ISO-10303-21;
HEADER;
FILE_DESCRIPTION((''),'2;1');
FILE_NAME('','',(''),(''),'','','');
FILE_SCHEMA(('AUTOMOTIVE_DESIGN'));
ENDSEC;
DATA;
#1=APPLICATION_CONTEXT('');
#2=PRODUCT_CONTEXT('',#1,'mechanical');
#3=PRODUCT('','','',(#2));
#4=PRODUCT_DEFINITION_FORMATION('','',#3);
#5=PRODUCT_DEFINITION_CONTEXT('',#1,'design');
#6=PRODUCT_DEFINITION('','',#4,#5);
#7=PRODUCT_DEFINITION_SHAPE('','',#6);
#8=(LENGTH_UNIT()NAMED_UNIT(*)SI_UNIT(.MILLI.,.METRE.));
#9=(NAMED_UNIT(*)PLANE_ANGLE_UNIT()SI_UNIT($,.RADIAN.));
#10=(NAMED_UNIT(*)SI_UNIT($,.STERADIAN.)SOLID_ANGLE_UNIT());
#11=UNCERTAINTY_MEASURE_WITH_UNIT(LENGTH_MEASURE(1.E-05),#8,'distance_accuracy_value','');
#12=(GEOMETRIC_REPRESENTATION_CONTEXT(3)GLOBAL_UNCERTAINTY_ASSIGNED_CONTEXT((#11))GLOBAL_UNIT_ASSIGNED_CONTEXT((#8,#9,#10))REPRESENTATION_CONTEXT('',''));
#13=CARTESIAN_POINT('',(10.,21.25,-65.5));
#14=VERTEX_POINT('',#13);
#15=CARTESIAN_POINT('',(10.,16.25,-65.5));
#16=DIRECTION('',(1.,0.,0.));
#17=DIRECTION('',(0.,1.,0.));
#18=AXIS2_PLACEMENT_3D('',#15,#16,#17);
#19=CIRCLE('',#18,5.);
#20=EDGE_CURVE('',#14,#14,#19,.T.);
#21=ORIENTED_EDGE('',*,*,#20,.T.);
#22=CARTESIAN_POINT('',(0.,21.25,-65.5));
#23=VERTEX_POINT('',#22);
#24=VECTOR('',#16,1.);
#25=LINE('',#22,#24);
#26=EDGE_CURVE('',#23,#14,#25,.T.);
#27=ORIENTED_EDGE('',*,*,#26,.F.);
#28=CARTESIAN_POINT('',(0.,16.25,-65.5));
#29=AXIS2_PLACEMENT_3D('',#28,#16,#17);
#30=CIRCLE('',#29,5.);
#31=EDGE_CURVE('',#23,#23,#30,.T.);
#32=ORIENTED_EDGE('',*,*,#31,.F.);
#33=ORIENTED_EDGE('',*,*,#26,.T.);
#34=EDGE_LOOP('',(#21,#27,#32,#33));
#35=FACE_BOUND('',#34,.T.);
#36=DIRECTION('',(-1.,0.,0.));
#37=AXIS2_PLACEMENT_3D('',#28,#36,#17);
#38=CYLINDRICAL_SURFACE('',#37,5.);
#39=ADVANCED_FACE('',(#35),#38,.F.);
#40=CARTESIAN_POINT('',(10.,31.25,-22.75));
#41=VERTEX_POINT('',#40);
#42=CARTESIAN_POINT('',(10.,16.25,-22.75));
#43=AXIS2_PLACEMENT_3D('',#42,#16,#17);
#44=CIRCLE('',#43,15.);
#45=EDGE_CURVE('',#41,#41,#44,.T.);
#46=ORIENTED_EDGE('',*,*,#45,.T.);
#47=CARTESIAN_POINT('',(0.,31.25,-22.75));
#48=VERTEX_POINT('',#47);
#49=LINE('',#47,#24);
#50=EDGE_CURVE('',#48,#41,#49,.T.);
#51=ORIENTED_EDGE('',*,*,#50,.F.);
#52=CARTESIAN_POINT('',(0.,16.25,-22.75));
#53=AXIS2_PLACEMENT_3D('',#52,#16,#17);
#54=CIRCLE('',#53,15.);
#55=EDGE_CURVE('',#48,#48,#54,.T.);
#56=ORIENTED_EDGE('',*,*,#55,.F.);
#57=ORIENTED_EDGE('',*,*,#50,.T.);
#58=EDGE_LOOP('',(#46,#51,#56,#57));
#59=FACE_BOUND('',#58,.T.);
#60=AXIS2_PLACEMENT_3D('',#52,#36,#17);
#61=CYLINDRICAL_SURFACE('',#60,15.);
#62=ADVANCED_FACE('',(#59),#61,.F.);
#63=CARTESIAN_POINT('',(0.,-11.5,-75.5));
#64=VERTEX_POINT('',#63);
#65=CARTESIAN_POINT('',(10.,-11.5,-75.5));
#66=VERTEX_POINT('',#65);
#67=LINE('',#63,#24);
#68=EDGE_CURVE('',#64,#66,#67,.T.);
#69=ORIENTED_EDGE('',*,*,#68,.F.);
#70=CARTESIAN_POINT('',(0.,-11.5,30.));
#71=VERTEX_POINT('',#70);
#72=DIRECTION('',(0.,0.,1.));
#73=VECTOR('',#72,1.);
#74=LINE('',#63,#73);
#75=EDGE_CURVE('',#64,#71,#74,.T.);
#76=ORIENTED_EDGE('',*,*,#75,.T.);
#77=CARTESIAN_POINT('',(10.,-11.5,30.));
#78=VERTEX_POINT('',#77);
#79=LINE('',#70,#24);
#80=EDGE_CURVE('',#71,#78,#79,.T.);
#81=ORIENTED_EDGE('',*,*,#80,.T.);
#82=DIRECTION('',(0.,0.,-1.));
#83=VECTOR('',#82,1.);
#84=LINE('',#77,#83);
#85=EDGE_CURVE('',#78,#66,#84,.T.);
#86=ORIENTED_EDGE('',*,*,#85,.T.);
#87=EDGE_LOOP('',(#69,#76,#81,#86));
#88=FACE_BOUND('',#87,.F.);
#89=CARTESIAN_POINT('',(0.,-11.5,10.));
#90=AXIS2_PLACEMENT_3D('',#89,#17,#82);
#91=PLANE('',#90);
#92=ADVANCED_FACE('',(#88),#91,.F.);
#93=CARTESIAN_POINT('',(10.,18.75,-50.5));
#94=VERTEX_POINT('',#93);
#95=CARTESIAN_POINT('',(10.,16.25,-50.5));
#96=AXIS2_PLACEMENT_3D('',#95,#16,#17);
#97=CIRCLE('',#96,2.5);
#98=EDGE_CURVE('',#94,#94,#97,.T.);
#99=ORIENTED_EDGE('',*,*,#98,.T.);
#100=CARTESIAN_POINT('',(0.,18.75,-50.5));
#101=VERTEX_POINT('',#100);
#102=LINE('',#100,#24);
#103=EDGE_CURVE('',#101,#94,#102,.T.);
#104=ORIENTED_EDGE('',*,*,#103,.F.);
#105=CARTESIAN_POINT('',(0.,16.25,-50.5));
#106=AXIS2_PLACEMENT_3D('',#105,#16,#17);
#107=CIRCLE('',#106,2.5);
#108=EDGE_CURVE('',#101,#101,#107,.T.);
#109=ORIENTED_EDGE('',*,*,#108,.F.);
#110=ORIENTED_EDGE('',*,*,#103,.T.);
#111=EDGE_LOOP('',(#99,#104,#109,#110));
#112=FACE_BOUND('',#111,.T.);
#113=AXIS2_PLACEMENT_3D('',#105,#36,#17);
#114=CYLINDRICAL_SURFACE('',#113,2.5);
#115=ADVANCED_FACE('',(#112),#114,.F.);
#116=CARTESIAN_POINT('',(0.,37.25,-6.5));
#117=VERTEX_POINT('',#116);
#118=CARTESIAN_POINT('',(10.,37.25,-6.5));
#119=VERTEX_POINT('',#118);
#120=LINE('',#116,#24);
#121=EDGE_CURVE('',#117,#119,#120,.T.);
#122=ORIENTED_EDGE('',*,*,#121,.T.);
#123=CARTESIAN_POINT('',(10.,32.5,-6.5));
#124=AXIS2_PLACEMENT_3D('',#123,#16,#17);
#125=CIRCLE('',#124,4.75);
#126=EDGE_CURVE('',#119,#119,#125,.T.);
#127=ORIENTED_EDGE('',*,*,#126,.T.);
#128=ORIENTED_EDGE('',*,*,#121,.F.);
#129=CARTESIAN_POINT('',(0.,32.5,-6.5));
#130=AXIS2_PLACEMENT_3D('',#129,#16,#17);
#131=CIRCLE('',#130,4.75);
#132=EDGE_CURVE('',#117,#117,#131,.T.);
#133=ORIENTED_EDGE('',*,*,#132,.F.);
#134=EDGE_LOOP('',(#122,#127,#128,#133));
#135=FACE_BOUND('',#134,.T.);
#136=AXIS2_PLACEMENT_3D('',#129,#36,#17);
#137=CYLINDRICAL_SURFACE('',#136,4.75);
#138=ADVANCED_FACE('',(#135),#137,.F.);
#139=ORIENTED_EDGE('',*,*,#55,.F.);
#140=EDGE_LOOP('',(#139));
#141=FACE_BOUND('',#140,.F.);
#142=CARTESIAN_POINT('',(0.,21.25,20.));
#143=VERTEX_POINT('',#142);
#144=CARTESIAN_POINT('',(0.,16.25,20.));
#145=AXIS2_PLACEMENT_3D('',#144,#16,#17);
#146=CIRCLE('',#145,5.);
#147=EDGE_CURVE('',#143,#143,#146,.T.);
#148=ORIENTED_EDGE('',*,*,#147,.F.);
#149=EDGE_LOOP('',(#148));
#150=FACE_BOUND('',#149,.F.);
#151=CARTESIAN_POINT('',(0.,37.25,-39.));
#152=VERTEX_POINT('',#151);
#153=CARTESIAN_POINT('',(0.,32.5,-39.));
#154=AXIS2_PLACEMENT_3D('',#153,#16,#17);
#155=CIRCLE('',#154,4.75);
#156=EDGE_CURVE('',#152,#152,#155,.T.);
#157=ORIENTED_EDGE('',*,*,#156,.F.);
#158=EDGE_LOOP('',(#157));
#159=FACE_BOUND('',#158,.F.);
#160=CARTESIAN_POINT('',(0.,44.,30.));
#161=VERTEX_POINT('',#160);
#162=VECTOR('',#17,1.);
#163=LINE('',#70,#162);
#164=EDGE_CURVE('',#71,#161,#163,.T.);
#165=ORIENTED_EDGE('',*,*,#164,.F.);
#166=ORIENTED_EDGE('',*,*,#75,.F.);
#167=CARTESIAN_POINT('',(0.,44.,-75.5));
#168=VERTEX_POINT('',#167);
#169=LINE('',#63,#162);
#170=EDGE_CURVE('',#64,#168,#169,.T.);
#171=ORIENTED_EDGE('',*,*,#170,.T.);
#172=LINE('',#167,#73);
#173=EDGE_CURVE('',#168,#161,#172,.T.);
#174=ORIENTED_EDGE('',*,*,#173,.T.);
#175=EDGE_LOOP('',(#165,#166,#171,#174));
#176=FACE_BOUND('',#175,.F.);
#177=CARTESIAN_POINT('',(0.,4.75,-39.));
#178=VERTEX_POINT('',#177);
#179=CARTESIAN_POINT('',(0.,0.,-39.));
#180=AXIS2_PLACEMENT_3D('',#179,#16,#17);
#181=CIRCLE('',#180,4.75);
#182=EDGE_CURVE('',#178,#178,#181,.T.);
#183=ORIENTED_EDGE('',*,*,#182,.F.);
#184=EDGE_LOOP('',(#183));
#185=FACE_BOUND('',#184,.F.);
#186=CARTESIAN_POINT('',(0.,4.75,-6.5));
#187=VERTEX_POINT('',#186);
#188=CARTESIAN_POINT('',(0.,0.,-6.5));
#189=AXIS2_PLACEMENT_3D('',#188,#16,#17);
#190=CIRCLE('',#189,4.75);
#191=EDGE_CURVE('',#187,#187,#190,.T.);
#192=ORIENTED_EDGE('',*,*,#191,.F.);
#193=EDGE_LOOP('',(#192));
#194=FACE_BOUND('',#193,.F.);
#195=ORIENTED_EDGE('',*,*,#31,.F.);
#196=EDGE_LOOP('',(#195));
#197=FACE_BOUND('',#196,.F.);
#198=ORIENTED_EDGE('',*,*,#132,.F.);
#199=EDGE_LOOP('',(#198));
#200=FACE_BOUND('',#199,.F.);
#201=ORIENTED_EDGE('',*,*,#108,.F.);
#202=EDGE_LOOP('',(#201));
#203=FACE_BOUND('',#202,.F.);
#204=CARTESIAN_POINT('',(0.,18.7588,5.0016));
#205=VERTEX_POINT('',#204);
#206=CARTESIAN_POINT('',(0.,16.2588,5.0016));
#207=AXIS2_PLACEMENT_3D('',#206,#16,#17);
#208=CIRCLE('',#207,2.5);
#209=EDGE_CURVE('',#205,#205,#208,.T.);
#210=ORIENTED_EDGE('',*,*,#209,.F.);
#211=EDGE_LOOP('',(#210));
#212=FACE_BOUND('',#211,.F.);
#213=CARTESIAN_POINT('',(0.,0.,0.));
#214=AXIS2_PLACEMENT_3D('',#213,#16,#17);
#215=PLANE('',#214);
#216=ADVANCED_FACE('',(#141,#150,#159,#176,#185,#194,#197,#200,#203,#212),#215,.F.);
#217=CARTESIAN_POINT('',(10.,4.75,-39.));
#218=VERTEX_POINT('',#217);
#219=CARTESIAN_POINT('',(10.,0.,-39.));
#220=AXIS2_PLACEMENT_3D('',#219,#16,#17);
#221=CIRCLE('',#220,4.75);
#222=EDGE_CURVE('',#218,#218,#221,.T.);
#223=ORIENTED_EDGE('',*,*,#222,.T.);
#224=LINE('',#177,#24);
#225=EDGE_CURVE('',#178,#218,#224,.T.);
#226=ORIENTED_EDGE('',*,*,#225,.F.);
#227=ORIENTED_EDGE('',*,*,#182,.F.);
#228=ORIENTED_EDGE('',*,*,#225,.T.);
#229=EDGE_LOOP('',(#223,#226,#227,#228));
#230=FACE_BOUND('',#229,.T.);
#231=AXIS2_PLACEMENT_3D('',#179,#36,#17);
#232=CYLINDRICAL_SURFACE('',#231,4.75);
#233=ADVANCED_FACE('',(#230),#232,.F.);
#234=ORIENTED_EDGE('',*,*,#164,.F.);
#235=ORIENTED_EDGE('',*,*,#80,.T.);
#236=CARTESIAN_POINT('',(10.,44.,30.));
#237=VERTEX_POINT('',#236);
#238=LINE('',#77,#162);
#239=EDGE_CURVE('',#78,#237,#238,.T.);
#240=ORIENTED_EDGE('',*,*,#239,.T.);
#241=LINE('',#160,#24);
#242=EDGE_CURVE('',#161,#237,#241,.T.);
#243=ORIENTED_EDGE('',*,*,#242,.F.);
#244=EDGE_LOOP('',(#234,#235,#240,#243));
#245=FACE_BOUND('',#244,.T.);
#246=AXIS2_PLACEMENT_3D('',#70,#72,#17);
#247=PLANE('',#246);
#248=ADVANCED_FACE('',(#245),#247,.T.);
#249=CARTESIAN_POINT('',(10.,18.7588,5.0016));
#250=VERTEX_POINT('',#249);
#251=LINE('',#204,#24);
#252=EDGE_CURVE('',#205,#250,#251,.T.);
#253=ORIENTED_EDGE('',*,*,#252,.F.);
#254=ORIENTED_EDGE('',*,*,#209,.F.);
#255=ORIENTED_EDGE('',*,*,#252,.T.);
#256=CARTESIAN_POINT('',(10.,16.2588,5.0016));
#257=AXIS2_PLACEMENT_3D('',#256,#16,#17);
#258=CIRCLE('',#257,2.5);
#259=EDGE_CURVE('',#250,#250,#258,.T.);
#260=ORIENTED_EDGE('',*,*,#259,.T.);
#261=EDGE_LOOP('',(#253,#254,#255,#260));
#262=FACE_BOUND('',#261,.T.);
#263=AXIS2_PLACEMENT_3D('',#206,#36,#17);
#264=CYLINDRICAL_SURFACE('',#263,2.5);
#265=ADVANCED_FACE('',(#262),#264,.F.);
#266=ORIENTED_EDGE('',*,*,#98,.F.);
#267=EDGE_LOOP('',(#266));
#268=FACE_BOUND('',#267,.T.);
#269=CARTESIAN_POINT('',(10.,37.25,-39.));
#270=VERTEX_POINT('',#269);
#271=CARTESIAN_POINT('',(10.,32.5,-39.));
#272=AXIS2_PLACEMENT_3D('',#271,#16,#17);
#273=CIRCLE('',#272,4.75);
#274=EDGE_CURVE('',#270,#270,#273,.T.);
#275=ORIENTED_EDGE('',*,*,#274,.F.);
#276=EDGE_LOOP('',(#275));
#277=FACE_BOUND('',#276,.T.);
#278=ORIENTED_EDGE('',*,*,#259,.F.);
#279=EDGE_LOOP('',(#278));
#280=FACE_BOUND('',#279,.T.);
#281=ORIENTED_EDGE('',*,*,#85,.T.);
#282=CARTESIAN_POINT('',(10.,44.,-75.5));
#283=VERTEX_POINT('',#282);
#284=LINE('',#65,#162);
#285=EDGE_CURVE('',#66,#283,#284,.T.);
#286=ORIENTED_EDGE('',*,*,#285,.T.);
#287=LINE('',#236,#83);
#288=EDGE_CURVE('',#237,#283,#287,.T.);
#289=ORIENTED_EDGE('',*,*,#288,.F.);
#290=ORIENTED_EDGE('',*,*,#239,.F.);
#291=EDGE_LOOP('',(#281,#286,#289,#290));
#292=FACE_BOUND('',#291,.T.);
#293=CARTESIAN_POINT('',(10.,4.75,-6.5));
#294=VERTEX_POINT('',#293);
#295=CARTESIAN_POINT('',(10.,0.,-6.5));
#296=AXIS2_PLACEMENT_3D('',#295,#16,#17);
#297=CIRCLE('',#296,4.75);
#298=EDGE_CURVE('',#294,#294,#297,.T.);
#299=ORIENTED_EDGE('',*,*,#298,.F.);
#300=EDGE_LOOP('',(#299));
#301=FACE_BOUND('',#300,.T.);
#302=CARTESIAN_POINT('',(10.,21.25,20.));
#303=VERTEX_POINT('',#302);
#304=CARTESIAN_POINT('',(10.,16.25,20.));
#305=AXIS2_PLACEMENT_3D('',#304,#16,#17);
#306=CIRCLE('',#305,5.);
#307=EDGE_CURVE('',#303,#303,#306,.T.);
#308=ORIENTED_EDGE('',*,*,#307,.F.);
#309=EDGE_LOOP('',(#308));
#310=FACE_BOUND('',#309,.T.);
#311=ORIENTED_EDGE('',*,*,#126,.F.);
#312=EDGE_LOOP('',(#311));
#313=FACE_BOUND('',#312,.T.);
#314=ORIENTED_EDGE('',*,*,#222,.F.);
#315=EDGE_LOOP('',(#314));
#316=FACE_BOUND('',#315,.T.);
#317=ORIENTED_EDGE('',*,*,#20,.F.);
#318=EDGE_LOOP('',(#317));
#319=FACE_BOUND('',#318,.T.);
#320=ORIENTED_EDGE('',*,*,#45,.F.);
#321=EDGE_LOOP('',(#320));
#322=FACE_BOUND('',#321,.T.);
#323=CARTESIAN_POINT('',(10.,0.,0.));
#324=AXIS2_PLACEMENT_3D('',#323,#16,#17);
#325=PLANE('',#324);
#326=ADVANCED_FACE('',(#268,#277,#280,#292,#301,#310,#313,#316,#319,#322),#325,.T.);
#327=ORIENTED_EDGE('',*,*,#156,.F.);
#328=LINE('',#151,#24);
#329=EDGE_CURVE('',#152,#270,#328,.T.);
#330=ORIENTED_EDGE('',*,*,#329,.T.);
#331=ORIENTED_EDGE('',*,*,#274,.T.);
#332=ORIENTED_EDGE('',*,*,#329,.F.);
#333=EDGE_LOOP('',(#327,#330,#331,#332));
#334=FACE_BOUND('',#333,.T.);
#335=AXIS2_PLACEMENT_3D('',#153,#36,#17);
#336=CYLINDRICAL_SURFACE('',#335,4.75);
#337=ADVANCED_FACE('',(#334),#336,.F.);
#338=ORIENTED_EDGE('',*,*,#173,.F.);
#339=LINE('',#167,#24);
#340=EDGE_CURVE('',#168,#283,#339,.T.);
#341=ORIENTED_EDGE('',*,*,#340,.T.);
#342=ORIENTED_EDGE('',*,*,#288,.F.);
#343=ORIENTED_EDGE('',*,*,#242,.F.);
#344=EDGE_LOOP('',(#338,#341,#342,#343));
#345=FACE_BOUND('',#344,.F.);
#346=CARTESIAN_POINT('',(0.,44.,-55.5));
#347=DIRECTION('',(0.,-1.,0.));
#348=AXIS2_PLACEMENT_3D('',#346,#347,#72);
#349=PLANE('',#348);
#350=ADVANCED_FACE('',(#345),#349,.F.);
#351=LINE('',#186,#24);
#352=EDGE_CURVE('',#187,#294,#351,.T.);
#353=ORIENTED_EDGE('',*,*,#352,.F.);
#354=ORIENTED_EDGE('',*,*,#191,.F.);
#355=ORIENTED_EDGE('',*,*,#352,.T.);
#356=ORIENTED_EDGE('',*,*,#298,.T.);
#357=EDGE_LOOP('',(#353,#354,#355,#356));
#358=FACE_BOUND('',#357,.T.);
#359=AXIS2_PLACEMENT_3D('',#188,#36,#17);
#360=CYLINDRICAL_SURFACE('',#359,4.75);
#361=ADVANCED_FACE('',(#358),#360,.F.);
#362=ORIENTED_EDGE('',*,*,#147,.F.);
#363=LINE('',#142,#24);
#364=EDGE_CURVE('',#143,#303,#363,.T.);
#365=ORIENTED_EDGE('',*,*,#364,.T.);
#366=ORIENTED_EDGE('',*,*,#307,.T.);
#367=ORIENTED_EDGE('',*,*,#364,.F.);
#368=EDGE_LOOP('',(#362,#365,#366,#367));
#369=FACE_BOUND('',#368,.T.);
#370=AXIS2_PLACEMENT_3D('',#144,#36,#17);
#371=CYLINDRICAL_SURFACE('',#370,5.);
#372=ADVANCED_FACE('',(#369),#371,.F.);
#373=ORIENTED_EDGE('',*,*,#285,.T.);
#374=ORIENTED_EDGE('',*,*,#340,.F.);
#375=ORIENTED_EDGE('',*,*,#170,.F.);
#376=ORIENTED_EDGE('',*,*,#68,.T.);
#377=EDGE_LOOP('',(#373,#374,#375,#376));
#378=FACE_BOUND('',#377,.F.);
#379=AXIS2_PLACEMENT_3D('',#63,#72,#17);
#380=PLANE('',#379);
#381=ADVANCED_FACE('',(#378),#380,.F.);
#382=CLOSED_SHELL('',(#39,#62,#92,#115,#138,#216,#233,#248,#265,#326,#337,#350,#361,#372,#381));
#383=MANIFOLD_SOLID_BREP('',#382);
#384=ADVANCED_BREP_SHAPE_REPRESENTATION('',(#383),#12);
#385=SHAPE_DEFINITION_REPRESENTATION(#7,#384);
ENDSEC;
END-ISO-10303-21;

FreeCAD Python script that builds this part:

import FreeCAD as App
import Part
import Sketcher

V = App.Vector

doc = App.newDocument("Part")
params = doc.addObject("Spreadsheet::Sheet", "Params")
for row, (alias, value) in enumerate([
    ("sketch1_diameter", "10 mm"),
    ("sketch1_diameter2", "5 mm"),
    ("sketch1_diameter3", "30 mm"),
    ("sketch1_diameter4", "9.5 mm"),
    ("sketch1_width", "55.5 mm"),
    ("pad1_length", "10 mm"),
], start=1):
    params.set(f"A{row}", alias)
    params.set(f"B{row}", "=" + value)
    params.setAlias(f"B{row}", alias)

body = doc.addObject("PartDesign::Body", "Body")

sketch1 = body.newObject("Sketcher::SketchObject", "Sketch")
sketch1.AttachmentSupport = (doc.getObject("YZ_Plane"), [""])
sketch1.MapMode = "FlatFace"
sketch1.addGeometry([
    Part.LineSegment(V(44, 30, 0), V(-11.5, 30, 0)),
    Part.LineSegment(V(-11.5, 30, 0), V(-11.5, -75.5, 0)),
    Part.LineSegment(V(-11.5, -75.5, 0), V(44, -75.5, 0)),
    Part.LineSegment(V(44, -75.5, 0), V(44, 30, 0)),
    Part.Circle(V(0, -39, 0), V(0, 0, 1), 4.8),
    Part.Circle(V(16.2, -50.5, 0), V(0, 0, 1), 2.5),
    Part.Circle(V(32.5, -39, 0), V(0, 0, 1), 4.8),
    Part.Circle(V(0, -6.5, 0), V(0, 0, 1), 4.8),
    Part.Circle(V(16.2, -22.8, 0), V(0, 0, 1), 15),
    Part.Circle(V(32.5, -6.5, 0), V(0, 0, 1), 4.8),
    Part.Circle(V(16.3, 5, 0), V(0, 0, 1), 2.5),
    Part.Circle(V(16.2, -65.5, 0), V(0, 0, 1), 5),
    Part.Circle(V(16.2, 20, 0), V(0, 0, 1), 5),
], False)
sketch1.addConstraint([
    Sketcher.Constraint("Coincident", 0, 2, 1, 1),
    Sketcher.Constraint("Coincident", 1, 2, 2, 1),
    Sketcher.Constraint("Coincident", 2, 2, 3, 1),
    Sketcher.Constraint("Coincident", 3, 2, 0, 1),
    Sketcher.Constraint("Horizontal", 0),
    Sketcher.Constraint("Vertical", 1),
    Sketcher.Constraint("Horizontal", 2),
    Sketcher.Constraint("Vertical", 3),
    Sketcher.Constraint("Equal", 4, 6),
    Sketcher.Constraint("Equal", 6, 7),
    Sketcher.Constraint("Equal", 7, 9),
    Sketcher.Constraint("Equal", 5, 10),
    Sketcher.Constraint("Equal", 11, 12),
    Sketcher.Constraint("PointOnObject", 4, 3, -2),
    Sketcher.Constraint("PointOnObject", 7, 3, -2),
    Sketcher.Constraint("Horizontal", 4, 3, 6, 3),
    Sketcher.Constraint("Horizontal", 7, 3, 9, 3),
    Sketcher.Constraint("Vertical", 5, 3, 8, 3),
    Sketcher.Constraint("Vertical", 6, 3, 9, 3),
    Sketcher.Constraint("Vertical", 8, 3, 11, 3),
    Sketcher.Constraint("Vertical", 11, 3, 12, 3),
    Sketcher.Constraint("Diameter", 11, 10.0),
    Sketcher.Constraint("Diameter", 5, 5.0),
    Sketcher.Constraint("Diameter", 8, 30.0),
    Sketcher.Constraint("DistanceY", -1, 1, 12, 3, 20.0),
    Sketcher.Constraint("DistanceY", 12, 3, 0, 2, 10.0),
    Sketcher.Constraint("DistanceY", 1, 2, 11, 3, 10.0),
    Sketcher.Constraint("Diameter", 4, 9.5),
    Sketcher.Constraint("DistanceX", 0, 2, 0, 1, 55.5),
    Sketcher.Constraint("DistanceY", 1, 2, 1, 1, 105.5),
    Sketcher.Constraint("DistanceY", 4, 3, -1, 1, 39.0),
    Sketcher.Constraint("DistanceX", -1, 1, 2, 2, 44.0),
    Sketcher.Constraint("DistanceY", 5, 3, 7, 3, 44.0),
    Sketcher.Constraint("DistanceY", 11, 3, 5, 3, 15.0),
    Sketcher.Constraint("DistanceX", 0, 2, 9, 3, 44.0),
    Sketcher.Constraint("DistanceX", -1, 1, 5, 3, 16.25),
    Sketcher.Constraint("DistanceY", 8, 3, -1, 1, 22.75),
    Sketcher.Constraint("DistanceX", -1, 1, 10, 3, 16.2588),
    Sketcher.Constraint("DistanceY", -1, 1, 10, 3, 5.0016),
])
sketch1.setExpression("Constraints[21]", "Params.sketch1_diameter")
sketch1.setExpression("Constraints[22]", "Params.sketch1_diameter2")
sketch1.setExpression("Constraints[23]", "Params.sketch1_diameter3")
sketch1.setExpression("Constraints[27]", "Params.sketch1_diameter4")
sketch1.setExpression("Constraints[28]", "Params.sketch1_width")
pad1 = body.newObject("PartDesign::Pad", "Pad")
pad1.Profile = sketch1
pad1.setExpression("Length", "Params.pad1_length")

doc.recompute()
